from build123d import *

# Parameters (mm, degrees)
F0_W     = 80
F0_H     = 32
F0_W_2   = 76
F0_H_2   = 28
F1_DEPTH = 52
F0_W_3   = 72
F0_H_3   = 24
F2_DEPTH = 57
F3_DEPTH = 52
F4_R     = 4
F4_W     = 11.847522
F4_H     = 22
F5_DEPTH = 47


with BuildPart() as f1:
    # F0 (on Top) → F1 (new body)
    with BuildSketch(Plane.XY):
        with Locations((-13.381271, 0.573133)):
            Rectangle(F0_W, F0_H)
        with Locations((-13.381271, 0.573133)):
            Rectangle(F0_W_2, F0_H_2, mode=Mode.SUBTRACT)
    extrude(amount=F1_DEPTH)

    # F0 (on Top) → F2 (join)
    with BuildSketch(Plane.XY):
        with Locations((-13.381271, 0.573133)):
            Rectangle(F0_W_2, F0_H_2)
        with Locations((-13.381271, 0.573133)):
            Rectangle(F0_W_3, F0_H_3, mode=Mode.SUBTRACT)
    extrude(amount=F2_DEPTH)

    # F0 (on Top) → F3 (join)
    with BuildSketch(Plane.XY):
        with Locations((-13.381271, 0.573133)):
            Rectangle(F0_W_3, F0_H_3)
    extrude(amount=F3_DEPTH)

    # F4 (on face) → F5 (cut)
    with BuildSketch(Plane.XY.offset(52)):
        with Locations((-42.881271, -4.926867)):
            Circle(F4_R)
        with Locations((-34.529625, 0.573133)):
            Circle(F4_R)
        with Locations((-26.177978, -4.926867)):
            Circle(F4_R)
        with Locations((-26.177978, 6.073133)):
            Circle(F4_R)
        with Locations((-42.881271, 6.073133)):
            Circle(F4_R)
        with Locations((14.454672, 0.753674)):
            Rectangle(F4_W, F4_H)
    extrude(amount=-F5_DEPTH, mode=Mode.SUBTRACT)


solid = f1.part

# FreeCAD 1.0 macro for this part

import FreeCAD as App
import Part
import Sketcher

doc = App.newDocument("Part")
params = doc.addObject("Spreadsheet::Sheet", "Params")
for row, (alias, value) in enumerate([
    ("sketch1_width", "80 mm"),
    ("sketch1_width2", "76 mm"),
    ("sketch1_height", "32 mm"),
    ("sketch1_height2", "28 mm"),
    ("pad1_length", "52 mm"),
    ("sketch2_width", "76 mm"),
    ("sketch2_width2", "72 mm"),
    ("sketch2_height", "28 mm"),
    ("sketch2_height2", "24 mm"),
    ("pad2_length", "57 mm"),
    ("sketch3_width", "72 mm"),
    ("sketch3_height", "24 mm"),
    ("pad3_length", "52 mm"),
    ("sketch4_diameter", "8 mm"),
    ("sketch4_height", "22 mm"),
    ("pocket1_length", "47 mm"),
], start=1):
    params.set(f"A{row}", alias)
    params.set(f"B{row}", "=" + value)
    params.setAlias(f"B{row}", alias)

body = doc.addObject("PartDesign::Body", "Body")

sketch1 = doc.addObject("Sketcher::SketchObject", "Sketch")
body.addObject(sketch1)
sketch1.AttachmentSupport = (doc.XY_Plane, [""])
sketch1.MapMode = "FlatFace"
sketch1.addGeometry([
    Part.LineSegment(App.Vector(-53.381271, 16.573133, 0), App.Vector(-53.381271, -15.426867, 0)),
    Part.LineSegment(App.Vector(-53.381271, -15.426867, 0), App.Vector(26.618729, -15.426867, 0)),
    Part.LineSegment(App.Vector(26.618729, -15.426867, 0), App.Vector(26.618729, 16.573133, 0)),
    Part.LineSegment(App.Vector(26.618729, 16.573133, 0), App.Vector(-53.381271, 16.573133, 0)),
    Part.LineSegment(App.Vector(24.618729, -13.426867, 0), App.Vector(-51.381271, -13.426867, 0)),
    Part.LineSegment(App.Vector(-51.381271, -13.426867, 0), App.Vector(-51.381271, 14.573133, 0)),
    Part.LineSegment(App.Vector(-51.381271, 14.573133, 0), App.Vector(24.618729, 14.573133, 0)),
    Part.LineSegment(App.Vector(24.618729, 14.573133, 0), App.Vector(24.618729, -13.426867, 0)),
], False)
sketch1.addConstraint([
    Sketcher.Constraint("Coincident", 0, 2, 1, 1),
    Sketcher.Constraint("Coincident", 1, 2, 2, 1),
    Sketcher.Constraint("Coincident", 2, 2, 3, 1),
    Sketcher.Constraint("Coincident", 3, 2, 0, 1),
    Sketcher.Constraint("Coincident", 4, 2, 5, 1),
    Sketcher.Constraint("Coincident", 5, 2, 6, 1),
    Sketcher.Constraint("Coincident", 6, 2, 7, 1),
    Sketcher.Constraint("Coincident", 7, 2, 4, 1),
    Sketcher.Constraint("Vertical", 0),
    Sketcher.Constraint("Horizontal", 1),
    Sketcher.Constraint("Vertical", 2),
    Sketcher.Constraint("Horizontal", 3),
    Sketcher.Constraint("Horizontal", 4),
    Sketcher.Constraint("Vertical", 5),
    Sketcher.Constraint("Horizontal", 6),
    Sketcher.Constraint("Vertical", 7),
    Sketcher.Constraint("DistanceX", 1, 1, 1, 2, 80.0),
    Sketcher.Constraint("DistanceX", 4, 2, 4, 1, 76.0),
    Sketcher.Constraint("DistanceY", 0, 2, 0, 1, 32.0),
    Sketcher.Constraint("DistanceY", 5, 1, 5, 2, 28.0),
    Sketcher.Constraint("DistanceX", 0, 2, 4, 2, 2.0),
    Sketcher.Constraint("DistanceY", 0, 2, 4, 2, 2.0),
    Sketcher.Constraint("DistanceX", 0, 2, -1, 1, 53.381271),
    Sketcher.Constraint("DistanceY", 0, 2, -1, 1, 15.426867),
])
sketch1.setExpression("Constraints[16]", "Params.sketch1_width")
sketch1.setExpression("Constraints[17]", "Params.sketch1_width2")
sketch1.setExpression("Constraints[18]", "Params.sketch1_height")
sketch1.setExpression("Constraints[19]", "Params.sketch1_height2")
pad1 = doc.addObject("PartDesign::Pad", "Pad")
body.addObject(pad1)
pad1.Profile = sketch1
pad1.setExpression("Length", "Params.pad1_length")

sketch2 = doc.addObject("Sketcher::SketchObject", "Sketch001")
body.addObject(sketch2)
sketch2.AttachmentSupport = (doc.XY_Plane, [""])
sketch2.MapMode = "FlatFace"
sketch2.addGeometry([
    Part.LineSegment(App.Vector(-51.381271, 14.573133, 0), App.Vector(-51.381271, -13.426867, 0)),
    Part.LineSegment(App.Vector(-51.381271, -13.426867, 0), App.Vector(24.618729, -13.426867, 0)),
    Part.LineSegment(App.Vector(24.618729, -13.426867, 0), App.Vector(24.618729, 14.573133, 0)),
    Part.LineSegment(App.Vector(24.618729, 14.573133, 0), App.Vector(-51.381271, 14.573133, 0)),
    Part.LineSegment(App.Vector(22.618729, -11.426867, 0), App.Vector(-49.381271, -11.426867, 0)),
    Part.LineSegment(App.Vector(-49.381271, -11.426867, 0), App.Vector(-49.381271, 12.573133, 0)),
    Part.LineSegment(App.Vector(-49.381271, 12.573133, 0), App.Vector(22.618729, 12.573133, 0)),
    Part.LineSegment(App.Vector(22.618729, 12.573133, 0), App.Vector(22.618729, -11.426867, 0)),
], False)
sketch2.addConstraint([
    Sketcher.Constraint("Coincident", 0, 2, 1, 1),
    Sketcher.Constraint("Coincident", 1, 2, 2, 1),
    Sketcher.Constraint("Coincident", 2, 2, 3, 1),
    Sketcher.Constraint("Coincident", 3, 2, 0, 1),
    Sketcher.Constraint("Coincident", 4, 2, 5, 1),
    Sketcher.Constraint("Coincident", 5, 2, 6, 1),
    Sketcher.Constraint("Coincident", 6, 2, 7, 1),
    Sketcher.Constraint("Coincident", 7, 2, 4, 1),
    Sketcher.Constraint("Vertical", 0),
    Sketcher.Constraint("Horizontal", 1),
    Sketcher.Constraint("Vertical", 2),
    Sketcher.Constraint("Horizontal", 3),
    Sketcher.Constraint("Horizontal", 4),
    Sketcher.Constraint("Vertical", 5),
    Sketcher.Constraint("Horizontal", 6),
    Sketcher.Constraint("Vertical", 7),
    Sketcher.Constraint("DistanceX", 1, 1, 1, 2, 76.0),
    Sketcher.Constraint("DistanceX", 4, 2, 4, 1, 72.0),
    Sketcher.Constraint("DistanceY", 0, 2, 0, 1, 28.0),
    Sketcher.Constraint("DistanceY", 5, 1, 5, 2, 24.0),
    Sketcher.Constraint("DistanceX", 0, 2, 4, 2, 2.0),
    Sketcher.Constraint("DistanceY", 0, 2, 4, 2, 2.0),
    Sketcher.Constraint("DistanceX", 0, 2, -1, 1, 51.381271),
    Sketcher.Constraint("DistanceY", 0, 2, -1, 1, 13.426867),
])
sketch2.setExpression("Constraints[16]", "Params.sketch2_width")
sketch2.setExpression("Constraints[17]", "Params.sketch2_width2")
sketch2.setExpression("Constraints[18]", "Params.sketch2_height")
sketch2.setExpression("Constraints[19]", "Params.sketch2_height2")
pad2 = doc.addObject("PartDesign::Pad", "Pad001")
body.addObject(pad2)
pad2.Profile = sketch2
pad2.setExpression("Length", "Params.pad2_length")

sketch3 = doc.addObject("Sketcher::SketchObject", "Sketch002")
body.addObject(sketch3)
sketch3.AttachmentSupport = (doc.XY_Plane, [""])
sketch3.MapMode = "FlatFace"
sketch3.addGeometry([
    Part.LineSegment(App.Vector(-49.381271, 12.573133, 0), App.Vector(-49.381271, -11.426867, 0)),
    Part.LineSegment(App.Vector(-49.381271, -11.426867, 0), App.Vector(22.618729, -11.426867, 0)),
    Part.LineSegment(App.Vector(22.618729, -11.426867, 0), App.Vector(22.618729, 12.573133, 0)),
    Part.LineSegment(App.Vector(22.618729, 12.573133, 0), App.Vector(-49.381271, 12.573133, 0)),
], False)
sketch3.addConstraint([
    Sketcher.Constraint("Coincident", 0, 2, 1, 1),
    Sketcher.Constraint("Coincident", 1, 2, 2, 1),
    Sketcher.Constraint("Coincident", 2, 2, 3, 1),
    Sketcher.Constraint("Coincident", 3, 2, 0, 1),
    Sketcher.Constraint("Vertical", 0),
    Sketcher.Constraint("Horizontal", 1),
    Sketcher.Constraint("Vertical", 2),
    Sketcher.Constraint("Horizontal", 3),
    Sketcher.Constraint("DistanceX", 1, 1, 1, 2, 72.0),
    Sketcher.Constraint("DistanceY", 0, 2, 0, 1, 24.0),
    Sketcher.Constraint("DistanceX", 0, 2, -1, 1, 49.381271),
    Sketcher.Constraint("DistanceY", 0, 2, -1, 1, 11.426867),
])
sketch3.setExpression("Constraints[8]", "Params.sketch3_width")
sketch3.setExpression("Constraints[9]", "Params.sketch3_height")
pad3 = doc.addObject("PartDesign::Pad", "Pad002")
body.addObject(pad3)
pad3.Profile = sketch3
pad3.setExpression("Length", "Params.pad3_length")

sketch4 = doc.addObject("Sketcher::SketchObject", "Sketch003")
body.addObject(sketch4)
sketch4.AttachmentSupport = (doc.XY_Plane, [""])
sketch4.MapMode = "FlatFace"
sketch4.AttachmentOffset = App.Placement(App.Vector(0, 0, 52), App.Rotation())
sketch4.addGeometry([
    Part.Circle(App.Vector(-42.881271, -4.926867, 0), App.Vector(0, 0, 1), 4),
    Part.Circle(App.Vector(-34.529625, 0.573133, 0), App.Vector(0, 0, 1), 4),
    Part.Circle(App.Vector(-26.177978, -4.926867, 0), App.Vector(0, 0, 1), 4),
    Part.Circle(App.Vector(-26.177978, 6.073133, 0), App.Vector(0, 0, 1), 4),
    Part.Circle(App.Vector(-42.881271, 6.073133, 0), App.Vector(0, 0, 1), 4),
    Part.LineSegment(App.Vector(8.530911, 11.753674, 0), App.Vector(8.530911, -10.246326, 0)),
    Part.LineSegment(App.Vector(8.530911, -10.246326, 0), App.Vector(20.378433, -10.246326, 0)),
    Part.LineSegment(App.Vector(20.378433, -10.246326, 0), App.Vector(20.378433, 11.753674, 0)),
    Part.LineSegment(App.Vector(20.378433, 11.753674, 0), App.Vector(8.530911, 11.753674, 0)),
], False)
sketch4.addConstraint([
    Sketcher.Constraint("Coincident", 5, 2, 6, 1),
    Sketcher.Constraint("Coincident", 6, 2, 7, 1),
    Sketcher.Constraint("Coincident", 7, 2, 8, 1),
    Sketcher.Constraint("Coincident", 8, 2, 5, 1),
    Sketcher.Constraint("Vertical", 5),
    Sketcher.Constraint("Horizontal", 6),
    Sketcher.Constraint("Vertical", 7),
    Sketcher.Constraint("Horizontal", 8),
    Sketcher.Constraint("Equal", 0, 1),
    Sketcher.Constraint("Equal", 1, 2),
    Sketcher.Constraint("Equal", 2, 3),
    Sketcher.Constraint("Equal", 3, 4),
    Sketcher.Constraint("Horizontal", 0, 3, 2, 3),
    Sketcher.Constraint("Horizontal", 3, 3, 4, 3),
    Sketcher.Constraint("Vertical", 2, 3, 3, 3),
    Sketcher.Constraint("Vertical", 0, 3, 4, 3),
    Sketcher.Constraint("Diameter", 0, 8.0),
    Sketcher.Constraint("DistanceY", 5, 2, 5, 1, 22.0),
    Sketcher.Constraint("DistanceY", 2, 3, 3, 3, 11.0),
    Sketcher.Constraint("DistanceY", 0, 3, 1, 3, 5.5),
    Sketcher.Constraint("DistanceX", 6, 1, 6, 2, 11.847522),
    Sketcher.Constraint("DistanceX", 0, 3, -1, 1, 42.881271),
    Sketcher.Constraint("DistanceX", -1, 1, 5, 2, 8.530911),
    Sketcher.Constraint("DistanceX", 2, 3, 5, 2, 34.708889),
    Sketcher.Constraint("DistanceY", 5, 2, 2, 3, 5.319459),
    Sketcher.Constraint("DistanceX", 1, 3, 6, 2, 54.908058),
    Sketcher.Constraint("DistanceY", 0, 3, -1, 1, 4.926867),
])
sketch4.setExpression("Constraints[16]", "Params.sketch4_diameter")
sketch4.setExpression("Constraints[17]", "Params.sketch4_height")
pocket1 = doc.addObject("PartDesign::Pocket", "Pocket")
body.addObject(pocket1)
pocket1.Profile = sketch4
pocket1.setExpression("Length", "Params.pocket1_length")

doc.recompute()
